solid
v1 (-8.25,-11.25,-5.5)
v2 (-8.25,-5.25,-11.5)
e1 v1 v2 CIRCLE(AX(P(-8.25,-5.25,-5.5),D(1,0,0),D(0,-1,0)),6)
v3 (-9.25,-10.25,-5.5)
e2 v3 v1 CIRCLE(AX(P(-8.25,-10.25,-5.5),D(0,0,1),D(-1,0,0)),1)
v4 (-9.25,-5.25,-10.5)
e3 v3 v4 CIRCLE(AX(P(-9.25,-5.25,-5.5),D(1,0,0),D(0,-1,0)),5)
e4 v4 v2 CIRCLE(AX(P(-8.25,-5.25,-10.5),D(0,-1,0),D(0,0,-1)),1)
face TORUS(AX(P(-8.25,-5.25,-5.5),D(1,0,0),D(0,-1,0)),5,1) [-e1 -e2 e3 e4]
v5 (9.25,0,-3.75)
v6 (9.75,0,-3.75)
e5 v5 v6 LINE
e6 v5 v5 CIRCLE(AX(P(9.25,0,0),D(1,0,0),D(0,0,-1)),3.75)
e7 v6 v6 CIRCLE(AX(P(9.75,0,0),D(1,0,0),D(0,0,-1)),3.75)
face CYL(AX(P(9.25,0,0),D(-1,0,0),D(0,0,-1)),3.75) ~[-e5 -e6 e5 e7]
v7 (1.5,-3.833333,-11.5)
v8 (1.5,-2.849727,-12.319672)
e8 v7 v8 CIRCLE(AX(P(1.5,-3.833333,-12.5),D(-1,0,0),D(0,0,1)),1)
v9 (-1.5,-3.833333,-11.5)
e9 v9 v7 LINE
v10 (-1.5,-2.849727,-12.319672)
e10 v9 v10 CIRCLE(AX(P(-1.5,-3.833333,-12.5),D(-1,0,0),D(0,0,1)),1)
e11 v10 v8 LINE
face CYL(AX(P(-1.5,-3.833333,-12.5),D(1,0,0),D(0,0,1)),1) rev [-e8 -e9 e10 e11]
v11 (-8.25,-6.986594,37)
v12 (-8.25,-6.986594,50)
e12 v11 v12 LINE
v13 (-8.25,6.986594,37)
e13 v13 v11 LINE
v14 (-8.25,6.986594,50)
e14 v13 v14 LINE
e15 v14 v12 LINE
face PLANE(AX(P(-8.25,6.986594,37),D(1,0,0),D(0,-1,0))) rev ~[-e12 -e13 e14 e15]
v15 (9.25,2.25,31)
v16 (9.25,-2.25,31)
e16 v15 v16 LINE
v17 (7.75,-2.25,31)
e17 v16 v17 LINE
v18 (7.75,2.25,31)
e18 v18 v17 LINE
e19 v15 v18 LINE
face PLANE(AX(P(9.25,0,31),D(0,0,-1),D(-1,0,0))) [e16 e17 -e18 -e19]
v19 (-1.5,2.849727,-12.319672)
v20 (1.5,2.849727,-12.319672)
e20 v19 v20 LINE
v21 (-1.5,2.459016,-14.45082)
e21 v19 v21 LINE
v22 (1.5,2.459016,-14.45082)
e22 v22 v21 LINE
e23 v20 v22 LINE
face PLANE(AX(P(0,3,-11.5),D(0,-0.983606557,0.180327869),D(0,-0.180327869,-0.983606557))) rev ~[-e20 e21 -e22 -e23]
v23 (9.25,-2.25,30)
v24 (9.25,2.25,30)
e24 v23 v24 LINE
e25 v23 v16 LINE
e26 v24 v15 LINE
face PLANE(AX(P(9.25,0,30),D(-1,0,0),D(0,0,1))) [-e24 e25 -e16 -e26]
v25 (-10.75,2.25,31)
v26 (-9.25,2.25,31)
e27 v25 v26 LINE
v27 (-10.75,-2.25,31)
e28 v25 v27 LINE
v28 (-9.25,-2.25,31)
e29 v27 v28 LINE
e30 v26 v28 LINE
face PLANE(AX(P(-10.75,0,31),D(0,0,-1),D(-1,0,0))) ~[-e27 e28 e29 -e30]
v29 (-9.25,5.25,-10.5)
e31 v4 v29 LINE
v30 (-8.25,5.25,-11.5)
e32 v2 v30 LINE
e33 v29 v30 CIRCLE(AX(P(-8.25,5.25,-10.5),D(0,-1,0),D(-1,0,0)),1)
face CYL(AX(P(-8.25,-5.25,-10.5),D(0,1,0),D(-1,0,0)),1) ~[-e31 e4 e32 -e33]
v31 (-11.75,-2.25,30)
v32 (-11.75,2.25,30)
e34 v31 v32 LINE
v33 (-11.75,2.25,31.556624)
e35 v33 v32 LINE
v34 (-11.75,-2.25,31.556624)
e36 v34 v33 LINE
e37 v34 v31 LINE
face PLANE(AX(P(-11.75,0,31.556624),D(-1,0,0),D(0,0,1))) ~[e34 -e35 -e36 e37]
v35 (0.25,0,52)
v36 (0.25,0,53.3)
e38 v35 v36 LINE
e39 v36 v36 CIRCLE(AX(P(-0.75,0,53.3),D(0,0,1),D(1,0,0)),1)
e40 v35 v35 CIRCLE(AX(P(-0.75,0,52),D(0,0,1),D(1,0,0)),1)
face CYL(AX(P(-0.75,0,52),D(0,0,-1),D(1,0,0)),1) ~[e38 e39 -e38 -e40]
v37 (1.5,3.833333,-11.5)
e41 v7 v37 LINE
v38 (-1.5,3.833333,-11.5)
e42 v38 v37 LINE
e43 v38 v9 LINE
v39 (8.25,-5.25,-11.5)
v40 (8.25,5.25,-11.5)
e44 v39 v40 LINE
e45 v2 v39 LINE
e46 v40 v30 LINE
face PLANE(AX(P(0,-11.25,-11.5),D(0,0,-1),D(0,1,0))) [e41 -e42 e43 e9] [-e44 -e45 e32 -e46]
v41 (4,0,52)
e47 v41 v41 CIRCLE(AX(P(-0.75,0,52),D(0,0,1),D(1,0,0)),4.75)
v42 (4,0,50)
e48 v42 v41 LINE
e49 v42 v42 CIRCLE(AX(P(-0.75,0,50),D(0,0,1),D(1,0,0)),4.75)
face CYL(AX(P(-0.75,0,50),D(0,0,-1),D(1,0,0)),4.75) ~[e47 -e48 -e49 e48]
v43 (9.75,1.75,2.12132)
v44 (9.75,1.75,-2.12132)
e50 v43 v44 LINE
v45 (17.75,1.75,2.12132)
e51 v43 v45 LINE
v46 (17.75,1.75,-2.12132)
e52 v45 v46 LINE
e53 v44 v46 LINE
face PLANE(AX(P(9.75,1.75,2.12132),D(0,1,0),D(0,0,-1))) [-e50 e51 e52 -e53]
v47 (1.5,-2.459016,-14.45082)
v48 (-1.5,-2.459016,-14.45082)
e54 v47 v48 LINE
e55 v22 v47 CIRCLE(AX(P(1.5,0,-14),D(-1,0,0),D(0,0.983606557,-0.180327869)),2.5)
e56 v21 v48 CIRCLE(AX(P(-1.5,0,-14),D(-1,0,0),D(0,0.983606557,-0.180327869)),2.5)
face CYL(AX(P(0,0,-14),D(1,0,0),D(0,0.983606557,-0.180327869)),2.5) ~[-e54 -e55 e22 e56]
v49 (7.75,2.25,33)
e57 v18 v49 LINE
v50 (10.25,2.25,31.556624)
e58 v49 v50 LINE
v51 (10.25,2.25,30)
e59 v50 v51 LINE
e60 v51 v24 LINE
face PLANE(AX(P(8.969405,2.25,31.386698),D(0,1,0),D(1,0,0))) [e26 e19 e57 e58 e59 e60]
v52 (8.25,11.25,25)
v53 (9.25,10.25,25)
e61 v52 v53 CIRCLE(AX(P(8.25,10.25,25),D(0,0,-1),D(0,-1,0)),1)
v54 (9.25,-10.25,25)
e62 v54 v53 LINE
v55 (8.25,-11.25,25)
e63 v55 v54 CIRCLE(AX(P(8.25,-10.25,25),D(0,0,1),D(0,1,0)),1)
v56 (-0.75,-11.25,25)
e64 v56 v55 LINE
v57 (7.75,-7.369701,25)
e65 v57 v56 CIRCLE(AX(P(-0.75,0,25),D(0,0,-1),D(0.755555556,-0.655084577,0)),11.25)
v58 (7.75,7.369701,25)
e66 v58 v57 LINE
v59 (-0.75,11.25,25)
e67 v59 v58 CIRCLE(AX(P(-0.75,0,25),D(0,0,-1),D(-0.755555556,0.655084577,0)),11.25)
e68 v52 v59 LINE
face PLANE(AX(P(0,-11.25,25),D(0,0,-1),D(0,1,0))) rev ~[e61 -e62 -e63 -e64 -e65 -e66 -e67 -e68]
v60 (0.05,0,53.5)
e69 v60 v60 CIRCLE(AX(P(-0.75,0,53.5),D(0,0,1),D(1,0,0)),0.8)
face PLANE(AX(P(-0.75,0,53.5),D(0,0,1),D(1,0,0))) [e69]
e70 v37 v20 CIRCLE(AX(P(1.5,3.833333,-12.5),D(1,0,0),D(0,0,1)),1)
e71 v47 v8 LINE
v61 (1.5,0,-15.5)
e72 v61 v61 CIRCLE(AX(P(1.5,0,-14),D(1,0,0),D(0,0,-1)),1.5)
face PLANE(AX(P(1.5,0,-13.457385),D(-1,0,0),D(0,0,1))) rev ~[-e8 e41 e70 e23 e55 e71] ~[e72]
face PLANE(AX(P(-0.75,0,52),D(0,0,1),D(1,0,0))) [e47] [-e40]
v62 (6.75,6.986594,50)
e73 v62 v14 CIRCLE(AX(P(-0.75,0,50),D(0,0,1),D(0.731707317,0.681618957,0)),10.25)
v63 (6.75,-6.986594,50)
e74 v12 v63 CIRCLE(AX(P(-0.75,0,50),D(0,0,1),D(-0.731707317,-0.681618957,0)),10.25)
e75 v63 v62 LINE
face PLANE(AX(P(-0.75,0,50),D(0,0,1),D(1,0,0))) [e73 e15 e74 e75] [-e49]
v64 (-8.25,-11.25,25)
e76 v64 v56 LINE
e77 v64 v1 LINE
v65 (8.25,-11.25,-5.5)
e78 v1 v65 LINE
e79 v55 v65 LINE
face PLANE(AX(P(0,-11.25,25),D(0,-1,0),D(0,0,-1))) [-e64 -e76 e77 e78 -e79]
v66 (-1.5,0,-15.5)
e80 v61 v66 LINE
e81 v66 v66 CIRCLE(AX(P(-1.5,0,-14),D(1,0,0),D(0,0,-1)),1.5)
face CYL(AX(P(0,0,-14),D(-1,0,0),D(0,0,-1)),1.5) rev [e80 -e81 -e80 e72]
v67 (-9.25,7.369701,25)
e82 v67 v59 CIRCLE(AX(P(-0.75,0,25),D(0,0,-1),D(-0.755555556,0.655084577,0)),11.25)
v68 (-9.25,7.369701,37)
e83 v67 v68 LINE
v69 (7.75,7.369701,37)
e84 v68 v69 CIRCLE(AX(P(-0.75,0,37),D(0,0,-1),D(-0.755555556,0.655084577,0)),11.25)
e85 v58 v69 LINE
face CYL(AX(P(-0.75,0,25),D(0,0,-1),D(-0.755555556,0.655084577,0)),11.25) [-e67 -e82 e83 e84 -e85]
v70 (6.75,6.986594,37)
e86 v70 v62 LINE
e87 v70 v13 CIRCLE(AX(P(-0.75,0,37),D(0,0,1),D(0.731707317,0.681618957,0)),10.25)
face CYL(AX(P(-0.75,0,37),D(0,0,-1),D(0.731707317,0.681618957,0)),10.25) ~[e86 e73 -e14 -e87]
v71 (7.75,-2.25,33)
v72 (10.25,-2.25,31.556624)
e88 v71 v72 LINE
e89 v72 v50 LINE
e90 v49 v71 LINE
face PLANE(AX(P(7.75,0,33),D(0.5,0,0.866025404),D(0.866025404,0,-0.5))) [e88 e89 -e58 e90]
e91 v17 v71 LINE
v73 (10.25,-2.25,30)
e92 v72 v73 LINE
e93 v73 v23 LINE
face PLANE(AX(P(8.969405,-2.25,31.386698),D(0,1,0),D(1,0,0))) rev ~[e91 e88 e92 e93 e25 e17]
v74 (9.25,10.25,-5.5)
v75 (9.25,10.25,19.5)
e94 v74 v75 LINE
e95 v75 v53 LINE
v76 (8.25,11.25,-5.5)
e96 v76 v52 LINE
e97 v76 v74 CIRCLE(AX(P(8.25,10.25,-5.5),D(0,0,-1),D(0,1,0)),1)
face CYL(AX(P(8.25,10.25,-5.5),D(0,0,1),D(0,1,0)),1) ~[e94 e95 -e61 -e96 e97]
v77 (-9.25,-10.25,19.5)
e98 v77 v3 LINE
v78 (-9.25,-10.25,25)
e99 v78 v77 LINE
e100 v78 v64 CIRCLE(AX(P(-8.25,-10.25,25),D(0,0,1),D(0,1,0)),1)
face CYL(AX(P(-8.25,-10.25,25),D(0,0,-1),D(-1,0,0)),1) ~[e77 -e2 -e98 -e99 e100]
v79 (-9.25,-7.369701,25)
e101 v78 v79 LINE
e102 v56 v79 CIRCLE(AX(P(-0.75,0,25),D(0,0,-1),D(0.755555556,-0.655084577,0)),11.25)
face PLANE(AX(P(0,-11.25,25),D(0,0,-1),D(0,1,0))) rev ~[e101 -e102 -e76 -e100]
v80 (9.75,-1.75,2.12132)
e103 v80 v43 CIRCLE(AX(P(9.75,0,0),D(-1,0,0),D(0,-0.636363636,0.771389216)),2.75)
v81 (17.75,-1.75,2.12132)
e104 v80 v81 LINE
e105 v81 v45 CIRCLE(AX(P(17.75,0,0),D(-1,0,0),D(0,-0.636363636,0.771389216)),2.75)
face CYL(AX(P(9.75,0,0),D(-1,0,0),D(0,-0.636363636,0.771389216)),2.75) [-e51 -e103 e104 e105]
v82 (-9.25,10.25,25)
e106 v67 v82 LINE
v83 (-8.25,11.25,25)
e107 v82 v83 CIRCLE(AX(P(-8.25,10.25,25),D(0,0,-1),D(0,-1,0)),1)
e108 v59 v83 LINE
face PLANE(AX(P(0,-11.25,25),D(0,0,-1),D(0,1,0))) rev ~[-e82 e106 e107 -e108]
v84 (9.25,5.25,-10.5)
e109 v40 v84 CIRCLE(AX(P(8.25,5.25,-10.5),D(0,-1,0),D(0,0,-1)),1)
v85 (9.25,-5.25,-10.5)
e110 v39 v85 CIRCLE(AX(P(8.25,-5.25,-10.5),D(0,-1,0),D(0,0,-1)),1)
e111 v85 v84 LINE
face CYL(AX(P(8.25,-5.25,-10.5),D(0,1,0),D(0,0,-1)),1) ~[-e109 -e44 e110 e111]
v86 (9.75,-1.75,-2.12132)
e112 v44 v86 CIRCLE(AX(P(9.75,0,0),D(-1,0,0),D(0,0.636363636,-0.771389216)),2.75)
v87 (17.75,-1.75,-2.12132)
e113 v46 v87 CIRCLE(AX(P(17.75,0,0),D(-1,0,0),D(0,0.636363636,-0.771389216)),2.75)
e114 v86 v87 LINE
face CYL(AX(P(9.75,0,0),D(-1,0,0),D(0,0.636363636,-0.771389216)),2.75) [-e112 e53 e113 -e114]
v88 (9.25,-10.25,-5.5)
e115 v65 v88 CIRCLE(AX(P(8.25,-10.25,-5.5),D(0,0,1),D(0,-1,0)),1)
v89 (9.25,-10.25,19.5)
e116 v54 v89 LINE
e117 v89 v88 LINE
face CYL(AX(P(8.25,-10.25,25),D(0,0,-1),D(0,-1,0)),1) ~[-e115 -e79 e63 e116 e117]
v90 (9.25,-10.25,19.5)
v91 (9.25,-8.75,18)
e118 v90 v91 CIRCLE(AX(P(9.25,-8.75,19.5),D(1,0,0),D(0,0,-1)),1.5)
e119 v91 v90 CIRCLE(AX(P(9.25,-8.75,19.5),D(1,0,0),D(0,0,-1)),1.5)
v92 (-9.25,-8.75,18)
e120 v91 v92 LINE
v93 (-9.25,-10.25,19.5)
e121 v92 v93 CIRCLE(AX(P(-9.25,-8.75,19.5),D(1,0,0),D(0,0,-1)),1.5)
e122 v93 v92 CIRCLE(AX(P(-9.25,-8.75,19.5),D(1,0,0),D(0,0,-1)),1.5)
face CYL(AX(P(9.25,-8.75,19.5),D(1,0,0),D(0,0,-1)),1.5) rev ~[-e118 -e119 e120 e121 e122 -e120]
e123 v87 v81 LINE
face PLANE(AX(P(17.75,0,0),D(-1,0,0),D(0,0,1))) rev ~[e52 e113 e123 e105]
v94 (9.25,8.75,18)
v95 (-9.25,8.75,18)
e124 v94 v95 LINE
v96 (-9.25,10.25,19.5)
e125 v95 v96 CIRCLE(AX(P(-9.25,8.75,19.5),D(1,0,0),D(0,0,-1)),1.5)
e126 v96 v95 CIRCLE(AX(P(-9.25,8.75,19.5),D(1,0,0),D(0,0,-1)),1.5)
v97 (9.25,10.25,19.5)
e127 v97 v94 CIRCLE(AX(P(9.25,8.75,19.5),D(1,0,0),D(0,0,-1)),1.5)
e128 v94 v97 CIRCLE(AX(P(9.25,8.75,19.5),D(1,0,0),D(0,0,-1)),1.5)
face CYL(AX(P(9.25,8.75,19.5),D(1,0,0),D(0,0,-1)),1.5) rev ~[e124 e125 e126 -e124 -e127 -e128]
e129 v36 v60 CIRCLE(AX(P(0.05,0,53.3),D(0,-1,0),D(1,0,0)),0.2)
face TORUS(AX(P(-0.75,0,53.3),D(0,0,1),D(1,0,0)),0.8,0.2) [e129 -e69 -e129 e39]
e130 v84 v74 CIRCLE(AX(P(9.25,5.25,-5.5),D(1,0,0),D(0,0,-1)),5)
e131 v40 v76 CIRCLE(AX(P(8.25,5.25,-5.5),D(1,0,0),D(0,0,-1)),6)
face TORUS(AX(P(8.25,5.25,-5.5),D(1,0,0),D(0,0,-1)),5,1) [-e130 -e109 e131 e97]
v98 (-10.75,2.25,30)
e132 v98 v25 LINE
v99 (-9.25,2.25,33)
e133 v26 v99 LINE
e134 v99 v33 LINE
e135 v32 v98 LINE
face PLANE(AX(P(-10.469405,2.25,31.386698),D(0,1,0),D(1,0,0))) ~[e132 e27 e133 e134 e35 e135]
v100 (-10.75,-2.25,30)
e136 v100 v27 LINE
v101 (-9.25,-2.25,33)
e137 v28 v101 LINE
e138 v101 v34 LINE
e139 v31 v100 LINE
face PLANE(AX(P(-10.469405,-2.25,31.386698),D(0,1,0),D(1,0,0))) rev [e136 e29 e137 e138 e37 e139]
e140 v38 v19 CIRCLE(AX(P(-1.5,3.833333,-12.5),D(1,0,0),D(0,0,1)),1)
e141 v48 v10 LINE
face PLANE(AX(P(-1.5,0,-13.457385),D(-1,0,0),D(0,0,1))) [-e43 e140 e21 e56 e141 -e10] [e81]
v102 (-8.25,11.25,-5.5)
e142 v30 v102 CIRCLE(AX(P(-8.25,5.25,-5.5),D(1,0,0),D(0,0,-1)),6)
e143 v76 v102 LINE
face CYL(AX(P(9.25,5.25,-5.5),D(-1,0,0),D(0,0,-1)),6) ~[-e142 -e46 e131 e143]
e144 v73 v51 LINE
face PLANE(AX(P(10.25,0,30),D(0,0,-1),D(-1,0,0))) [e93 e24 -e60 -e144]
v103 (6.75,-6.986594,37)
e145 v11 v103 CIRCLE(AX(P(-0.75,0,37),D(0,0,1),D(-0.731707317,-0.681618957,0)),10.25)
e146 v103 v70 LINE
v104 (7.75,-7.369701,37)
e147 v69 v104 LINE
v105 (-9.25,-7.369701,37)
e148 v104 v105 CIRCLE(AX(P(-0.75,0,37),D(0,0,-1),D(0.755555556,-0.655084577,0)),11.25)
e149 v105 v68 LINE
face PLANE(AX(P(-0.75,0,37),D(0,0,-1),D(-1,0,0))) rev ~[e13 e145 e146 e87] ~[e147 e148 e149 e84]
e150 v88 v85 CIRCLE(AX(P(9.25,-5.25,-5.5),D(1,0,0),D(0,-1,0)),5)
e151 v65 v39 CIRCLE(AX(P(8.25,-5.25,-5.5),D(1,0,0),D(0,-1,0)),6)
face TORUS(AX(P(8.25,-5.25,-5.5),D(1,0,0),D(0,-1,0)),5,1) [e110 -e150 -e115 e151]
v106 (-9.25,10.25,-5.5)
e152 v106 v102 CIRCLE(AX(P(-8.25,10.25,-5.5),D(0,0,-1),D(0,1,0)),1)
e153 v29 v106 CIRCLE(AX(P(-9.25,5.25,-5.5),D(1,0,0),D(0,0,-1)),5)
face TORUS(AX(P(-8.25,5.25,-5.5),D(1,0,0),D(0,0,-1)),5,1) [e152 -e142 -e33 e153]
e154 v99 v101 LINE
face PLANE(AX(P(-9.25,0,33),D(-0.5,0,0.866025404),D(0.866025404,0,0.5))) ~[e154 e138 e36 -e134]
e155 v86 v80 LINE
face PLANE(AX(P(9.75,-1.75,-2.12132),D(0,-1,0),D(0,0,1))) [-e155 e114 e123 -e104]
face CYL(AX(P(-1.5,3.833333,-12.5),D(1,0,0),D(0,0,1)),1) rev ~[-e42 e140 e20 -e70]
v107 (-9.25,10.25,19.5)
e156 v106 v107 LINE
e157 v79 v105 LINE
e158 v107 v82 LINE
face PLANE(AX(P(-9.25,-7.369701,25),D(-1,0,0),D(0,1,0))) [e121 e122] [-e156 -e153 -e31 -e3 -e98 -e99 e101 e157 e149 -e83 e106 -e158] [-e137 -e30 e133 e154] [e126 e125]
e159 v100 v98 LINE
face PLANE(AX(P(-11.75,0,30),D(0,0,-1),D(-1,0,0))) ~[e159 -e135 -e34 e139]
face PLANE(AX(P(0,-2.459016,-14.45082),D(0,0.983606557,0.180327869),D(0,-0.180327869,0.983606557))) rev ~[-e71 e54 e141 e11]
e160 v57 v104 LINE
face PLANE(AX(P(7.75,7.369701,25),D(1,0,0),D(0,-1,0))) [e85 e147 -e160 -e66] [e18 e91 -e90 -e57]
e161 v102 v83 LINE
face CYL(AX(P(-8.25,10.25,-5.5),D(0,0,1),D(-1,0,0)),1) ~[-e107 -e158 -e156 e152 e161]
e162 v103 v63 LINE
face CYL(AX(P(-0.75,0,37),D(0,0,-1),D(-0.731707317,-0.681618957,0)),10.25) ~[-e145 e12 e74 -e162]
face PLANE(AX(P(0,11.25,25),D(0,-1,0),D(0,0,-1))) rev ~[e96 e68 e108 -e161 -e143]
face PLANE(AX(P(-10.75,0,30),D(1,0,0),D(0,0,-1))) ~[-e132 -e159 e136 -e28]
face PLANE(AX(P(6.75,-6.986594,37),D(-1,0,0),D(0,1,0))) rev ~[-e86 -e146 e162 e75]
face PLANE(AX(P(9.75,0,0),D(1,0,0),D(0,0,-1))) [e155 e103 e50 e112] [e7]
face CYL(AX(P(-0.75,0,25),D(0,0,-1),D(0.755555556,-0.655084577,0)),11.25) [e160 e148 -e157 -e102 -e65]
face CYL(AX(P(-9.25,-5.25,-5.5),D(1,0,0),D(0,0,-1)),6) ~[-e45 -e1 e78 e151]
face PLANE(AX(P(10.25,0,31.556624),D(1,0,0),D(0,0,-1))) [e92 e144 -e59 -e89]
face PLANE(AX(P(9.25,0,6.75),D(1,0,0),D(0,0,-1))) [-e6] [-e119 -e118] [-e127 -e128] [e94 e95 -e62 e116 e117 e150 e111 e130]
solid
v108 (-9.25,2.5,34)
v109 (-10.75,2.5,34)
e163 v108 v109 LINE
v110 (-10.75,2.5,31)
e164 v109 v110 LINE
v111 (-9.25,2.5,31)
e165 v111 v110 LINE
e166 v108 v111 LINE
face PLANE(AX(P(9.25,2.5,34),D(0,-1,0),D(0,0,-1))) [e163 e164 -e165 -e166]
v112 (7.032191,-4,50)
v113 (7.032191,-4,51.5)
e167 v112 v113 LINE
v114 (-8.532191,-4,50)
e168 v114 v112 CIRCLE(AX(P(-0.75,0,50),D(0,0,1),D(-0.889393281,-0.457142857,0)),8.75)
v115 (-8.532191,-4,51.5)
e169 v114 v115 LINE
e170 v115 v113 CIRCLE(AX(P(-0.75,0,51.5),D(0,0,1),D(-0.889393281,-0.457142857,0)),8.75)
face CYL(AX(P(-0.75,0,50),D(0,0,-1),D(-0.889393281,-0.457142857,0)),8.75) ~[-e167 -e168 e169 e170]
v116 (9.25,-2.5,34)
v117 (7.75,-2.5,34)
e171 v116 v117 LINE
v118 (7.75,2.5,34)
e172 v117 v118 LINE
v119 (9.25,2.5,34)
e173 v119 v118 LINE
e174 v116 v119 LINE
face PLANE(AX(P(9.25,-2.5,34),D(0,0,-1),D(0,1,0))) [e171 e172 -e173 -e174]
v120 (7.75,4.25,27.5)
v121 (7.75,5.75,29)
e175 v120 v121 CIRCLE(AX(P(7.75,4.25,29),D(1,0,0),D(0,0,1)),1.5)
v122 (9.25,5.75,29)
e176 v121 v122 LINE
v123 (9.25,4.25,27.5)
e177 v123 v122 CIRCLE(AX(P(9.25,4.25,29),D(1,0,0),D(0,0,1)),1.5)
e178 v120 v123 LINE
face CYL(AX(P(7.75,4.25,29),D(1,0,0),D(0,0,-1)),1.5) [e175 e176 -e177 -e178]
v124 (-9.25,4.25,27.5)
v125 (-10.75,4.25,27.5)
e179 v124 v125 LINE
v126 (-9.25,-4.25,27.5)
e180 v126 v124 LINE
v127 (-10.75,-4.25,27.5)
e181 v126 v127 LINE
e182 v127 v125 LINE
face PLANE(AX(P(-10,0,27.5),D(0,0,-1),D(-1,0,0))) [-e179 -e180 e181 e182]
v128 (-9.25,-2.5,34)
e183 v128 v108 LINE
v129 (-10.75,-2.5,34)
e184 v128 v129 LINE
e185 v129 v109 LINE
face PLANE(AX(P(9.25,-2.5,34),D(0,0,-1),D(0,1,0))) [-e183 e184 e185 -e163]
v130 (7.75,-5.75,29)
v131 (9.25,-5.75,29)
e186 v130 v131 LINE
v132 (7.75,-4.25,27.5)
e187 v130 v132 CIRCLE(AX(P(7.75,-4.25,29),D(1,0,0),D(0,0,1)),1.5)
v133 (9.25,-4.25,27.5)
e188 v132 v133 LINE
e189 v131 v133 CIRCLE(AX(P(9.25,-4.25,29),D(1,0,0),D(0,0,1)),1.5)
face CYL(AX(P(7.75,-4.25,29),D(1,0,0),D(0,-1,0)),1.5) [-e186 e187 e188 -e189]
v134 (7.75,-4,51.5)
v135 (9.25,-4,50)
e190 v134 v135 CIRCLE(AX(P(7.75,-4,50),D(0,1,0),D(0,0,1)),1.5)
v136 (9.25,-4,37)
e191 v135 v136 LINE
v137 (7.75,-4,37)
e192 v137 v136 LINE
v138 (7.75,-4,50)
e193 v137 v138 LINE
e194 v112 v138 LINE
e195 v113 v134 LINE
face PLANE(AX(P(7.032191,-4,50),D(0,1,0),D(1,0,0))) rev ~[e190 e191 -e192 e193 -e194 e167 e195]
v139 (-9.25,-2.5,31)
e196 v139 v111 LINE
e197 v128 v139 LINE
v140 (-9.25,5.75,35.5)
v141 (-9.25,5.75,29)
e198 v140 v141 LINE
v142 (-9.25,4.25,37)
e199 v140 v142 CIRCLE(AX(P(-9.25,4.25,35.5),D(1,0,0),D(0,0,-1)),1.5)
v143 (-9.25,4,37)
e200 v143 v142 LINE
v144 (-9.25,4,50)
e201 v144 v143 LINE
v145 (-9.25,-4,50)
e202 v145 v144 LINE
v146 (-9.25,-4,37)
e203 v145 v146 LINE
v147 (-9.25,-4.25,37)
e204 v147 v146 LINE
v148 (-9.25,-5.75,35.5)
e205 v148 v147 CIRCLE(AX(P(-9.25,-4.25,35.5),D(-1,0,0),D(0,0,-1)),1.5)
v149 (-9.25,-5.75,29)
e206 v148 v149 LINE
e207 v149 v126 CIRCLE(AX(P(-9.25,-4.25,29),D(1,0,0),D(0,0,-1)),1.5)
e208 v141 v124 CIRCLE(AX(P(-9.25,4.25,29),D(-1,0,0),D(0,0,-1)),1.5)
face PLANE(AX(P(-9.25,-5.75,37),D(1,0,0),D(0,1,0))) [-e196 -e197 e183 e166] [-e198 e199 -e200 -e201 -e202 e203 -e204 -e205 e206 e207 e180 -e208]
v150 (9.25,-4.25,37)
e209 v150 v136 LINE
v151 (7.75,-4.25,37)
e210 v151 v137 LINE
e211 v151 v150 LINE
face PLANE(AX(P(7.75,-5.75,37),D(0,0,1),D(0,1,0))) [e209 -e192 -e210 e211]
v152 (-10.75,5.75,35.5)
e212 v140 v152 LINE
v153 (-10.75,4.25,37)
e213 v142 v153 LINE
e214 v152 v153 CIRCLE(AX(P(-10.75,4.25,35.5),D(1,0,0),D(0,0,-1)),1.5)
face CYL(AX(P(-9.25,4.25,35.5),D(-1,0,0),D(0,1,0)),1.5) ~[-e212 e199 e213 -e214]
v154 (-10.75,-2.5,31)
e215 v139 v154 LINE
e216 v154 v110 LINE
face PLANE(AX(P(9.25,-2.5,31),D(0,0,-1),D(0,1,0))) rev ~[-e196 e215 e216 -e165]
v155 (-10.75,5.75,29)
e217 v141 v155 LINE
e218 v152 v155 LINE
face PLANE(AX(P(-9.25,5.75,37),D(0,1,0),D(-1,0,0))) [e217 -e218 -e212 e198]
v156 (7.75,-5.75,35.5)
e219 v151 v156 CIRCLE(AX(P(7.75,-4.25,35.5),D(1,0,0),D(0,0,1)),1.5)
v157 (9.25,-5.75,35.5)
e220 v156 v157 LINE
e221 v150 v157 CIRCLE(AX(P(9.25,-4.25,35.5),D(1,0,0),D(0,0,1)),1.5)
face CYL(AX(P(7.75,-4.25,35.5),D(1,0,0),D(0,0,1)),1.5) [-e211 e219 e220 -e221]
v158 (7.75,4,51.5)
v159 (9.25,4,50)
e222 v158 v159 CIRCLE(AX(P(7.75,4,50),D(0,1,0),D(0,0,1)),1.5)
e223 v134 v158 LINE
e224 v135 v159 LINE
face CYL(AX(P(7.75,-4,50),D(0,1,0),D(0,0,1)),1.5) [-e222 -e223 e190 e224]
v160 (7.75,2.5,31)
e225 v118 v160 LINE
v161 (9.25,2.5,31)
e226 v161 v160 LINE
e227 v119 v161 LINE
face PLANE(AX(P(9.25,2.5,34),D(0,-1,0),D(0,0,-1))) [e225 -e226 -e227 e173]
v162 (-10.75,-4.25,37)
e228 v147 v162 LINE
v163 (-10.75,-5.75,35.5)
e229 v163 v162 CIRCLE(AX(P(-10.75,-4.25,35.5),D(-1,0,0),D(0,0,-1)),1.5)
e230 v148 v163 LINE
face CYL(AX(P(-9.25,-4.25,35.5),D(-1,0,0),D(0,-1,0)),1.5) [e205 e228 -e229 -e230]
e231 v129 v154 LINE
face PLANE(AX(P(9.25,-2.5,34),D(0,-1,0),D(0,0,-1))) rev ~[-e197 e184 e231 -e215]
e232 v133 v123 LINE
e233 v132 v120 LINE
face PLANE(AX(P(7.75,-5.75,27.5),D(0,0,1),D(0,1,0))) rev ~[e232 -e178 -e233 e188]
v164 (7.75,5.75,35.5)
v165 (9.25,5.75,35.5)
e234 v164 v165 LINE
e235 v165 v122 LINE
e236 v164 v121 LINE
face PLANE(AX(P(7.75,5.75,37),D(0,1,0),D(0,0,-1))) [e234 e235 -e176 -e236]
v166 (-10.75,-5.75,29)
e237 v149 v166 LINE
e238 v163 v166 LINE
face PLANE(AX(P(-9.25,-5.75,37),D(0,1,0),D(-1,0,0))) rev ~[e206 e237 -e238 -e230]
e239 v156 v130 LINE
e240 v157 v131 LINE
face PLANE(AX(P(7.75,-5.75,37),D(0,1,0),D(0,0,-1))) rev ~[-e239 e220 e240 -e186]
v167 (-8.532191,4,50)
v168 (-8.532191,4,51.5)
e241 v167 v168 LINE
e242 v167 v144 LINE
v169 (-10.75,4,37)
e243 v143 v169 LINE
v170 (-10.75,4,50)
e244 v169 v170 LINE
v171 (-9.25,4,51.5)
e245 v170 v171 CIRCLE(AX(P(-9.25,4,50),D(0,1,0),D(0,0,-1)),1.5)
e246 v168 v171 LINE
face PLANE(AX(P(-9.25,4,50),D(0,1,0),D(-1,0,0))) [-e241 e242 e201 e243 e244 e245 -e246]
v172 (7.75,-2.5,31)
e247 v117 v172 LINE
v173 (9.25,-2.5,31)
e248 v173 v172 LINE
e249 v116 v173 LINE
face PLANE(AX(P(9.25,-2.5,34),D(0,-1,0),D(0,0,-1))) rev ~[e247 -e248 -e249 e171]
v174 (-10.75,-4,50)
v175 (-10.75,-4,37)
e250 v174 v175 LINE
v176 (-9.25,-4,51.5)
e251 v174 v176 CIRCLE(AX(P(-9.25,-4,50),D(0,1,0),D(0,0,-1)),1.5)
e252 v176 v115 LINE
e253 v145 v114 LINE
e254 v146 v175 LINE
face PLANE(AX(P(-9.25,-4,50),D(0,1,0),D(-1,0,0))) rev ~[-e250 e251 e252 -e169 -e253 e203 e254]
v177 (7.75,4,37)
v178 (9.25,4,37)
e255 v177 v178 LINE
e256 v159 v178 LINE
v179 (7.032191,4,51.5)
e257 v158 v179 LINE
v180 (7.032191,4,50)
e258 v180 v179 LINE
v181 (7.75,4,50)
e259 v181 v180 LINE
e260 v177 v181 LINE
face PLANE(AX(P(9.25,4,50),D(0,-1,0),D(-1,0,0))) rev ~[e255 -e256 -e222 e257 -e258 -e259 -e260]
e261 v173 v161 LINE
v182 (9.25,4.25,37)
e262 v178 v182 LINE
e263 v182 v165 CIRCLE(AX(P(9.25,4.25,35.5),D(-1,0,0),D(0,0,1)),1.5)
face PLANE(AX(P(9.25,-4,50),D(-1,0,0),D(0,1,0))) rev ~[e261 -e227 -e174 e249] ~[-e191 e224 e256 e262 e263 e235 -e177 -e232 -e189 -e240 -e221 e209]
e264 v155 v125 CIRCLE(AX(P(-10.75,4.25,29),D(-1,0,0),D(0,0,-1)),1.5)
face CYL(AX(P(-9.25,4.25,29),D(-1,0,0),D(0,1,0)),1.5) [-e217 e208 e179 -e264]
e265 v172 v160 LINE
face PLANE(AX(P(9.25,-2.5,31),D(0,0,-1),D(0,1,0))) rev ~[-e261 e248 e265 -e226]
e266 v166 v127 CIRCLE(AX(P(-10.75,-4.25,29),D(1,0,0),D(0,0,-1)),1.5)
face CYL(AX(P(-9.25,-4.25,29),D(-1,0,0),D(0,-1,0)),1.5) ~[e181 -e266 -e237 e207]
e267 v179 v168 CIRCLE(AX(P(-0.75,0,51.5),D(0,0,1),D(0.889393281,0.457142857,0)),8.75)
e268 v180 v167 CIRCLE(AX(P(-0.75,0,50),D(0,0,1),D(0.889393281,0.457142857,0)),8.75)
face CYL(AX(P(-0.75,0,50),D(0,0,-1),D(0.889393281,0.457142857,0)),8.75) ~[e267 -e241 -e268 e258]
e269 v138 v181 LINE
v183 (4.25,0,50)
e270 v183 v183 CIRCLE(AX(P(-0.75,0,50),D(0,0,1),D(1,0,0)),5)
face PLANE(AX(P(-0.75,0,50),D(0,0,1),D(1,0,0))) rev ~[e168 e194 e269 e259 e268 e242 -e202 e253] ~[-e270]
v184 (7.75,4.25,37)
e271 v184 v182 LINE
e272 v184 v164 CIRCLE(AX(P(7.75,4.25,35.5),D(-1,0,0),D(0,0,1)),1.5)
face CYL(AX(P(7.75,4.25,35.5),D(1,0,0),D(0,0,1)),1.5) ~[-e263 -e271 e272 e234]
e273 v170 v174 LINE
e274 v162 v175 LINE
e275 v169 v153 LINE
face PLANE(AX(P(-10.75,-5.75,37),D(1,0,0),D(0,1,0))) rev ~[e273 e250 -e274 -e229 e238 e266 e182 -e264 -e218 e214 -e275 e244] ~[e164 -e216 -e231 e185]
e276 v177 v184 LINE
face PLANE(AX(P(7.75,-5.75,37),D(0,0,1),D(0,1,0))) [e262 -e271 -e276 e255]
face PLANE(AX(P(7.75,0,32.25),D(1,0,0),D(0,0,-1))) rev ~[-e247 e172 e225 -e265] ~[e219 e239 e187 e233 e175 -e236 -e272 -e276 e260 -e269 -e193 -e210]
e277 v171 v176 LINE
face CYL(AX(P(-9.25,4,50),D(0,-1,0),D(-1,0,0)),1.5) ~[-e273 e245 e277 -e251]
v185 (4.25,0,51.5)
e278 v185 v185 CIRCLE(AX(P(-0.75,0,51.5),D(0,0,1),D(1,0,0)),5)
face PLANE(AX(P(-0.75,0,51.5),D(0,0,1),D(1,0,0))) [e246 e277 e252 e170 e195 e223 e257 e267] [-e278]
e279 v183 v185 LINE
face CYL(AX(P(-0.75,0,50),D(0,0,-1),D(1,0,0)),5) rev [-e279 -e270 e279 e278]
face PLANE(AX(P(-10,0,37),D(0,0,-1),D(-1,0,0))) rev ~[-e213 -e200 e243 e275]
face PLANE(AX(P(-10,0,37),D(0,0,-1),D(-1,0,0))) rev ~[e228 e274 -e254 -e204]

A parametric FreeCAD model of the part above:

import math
import FreeCAD as App
import Part
import Sketcher
from FreeCAD import Vector
Q = App.Units.Quantity


def edges_at(feature, points):
    """Names of the edges that pass closest to the given points."""
    edges = feature.Shape.Edges
    near = lambda p: min(range(len(edges)), key=lambda i: edges[i].distToShape(Part.Vertex(*p))[0])
    return sorted({f"Edge{near(p) + 1}" for p in points})


def add_polygon(sketch, points):
    """Adds a closed chain of lines whose ends are joined by coincident constraints."""
    first, n = sketch.GeometryCount, len(points)
    for a, b in zip(points, points[1:] + points[:1]):
        sketch.addGeometry(Part.LineSegment(App.Vector(*a, 0), App.Vector(*b, 0)), False)
    for i in range(n):
        sketch.addConstraint(Sketcher.Constraint("Coincident", first + i, 2, first + (i + 1) % n, 1))

doc = App.newDocument("Part")
body = doc.addObject("PartDesign::Body", "Body")

sketch1 = doc.addObject("Sketcher::SketchObject", "Sketch")
body.addObject(sketch1)
sketch1.AttachmentSupport = (doc.YZ_Plane, [""])
sketch1.MapMode = "FlatFace"
add_polygon(sketch1, [(11, 25), (-11, 25), (-11, -12), (11, -12)])
sketch1.addConstraint(Sketcher.Constraint("Horizontal", 0))
sketch1.addConstraint(Sketcher.Constraint("Vertical", 1))
sketch1.addConstraint(Sketcher.Constraint("Horizontal", 2))
sketch1.addConstraint(Sketcher.Constraint("Vertical", 3))
sketch1.addConstraint(Sketcher.Constraint("DistanceX", 0, 2, 0, 1, Q("22.5 mm")))
sketch1.addConstraint(Sketcher.Constraint("DistanceY", 1, 2, 1, 1, Q("36.5 mm")))
sketch1.addConstraint(Sketcher.Constraint("DistanceY", -1, 1, 0, 2, Q("25 mm")))
sketch1.addConstraint(Sketcher.Constraint("DistanceX", 0, 2, -1, 1, Q("11.25 mm")))
pad1 = doc.addObject("PartDesign::Pad", "Pad")
body.addObject(pad1)
pad1.Profile = sketch1
pad1.Length = 18.5
pad1.Midplane = True
doc.recompute()

fillet = doc.addObject("PartDesign::Fillet", "Fillet")
body.addObject(fillet)
fillet.Base = (pad1, edges_at(pad1, [(0, -11.25, -11.5), (0, 11.25, -11.5)]))
fillet.Radius = 6

sketch2 = doc.addObject("Sketcher::SketchObject", "Sketch001")
body.addObject(sketch2)
sketch2.AttachmentSupport = (doc.XY_Plane, [""])
sketch2.MapMode = "FlatFace"
sketch2.AttachmentOffset = App.Placement(Vector(0, 0, 25), App.Rotation())
sketch2.addGeometry(Part.LineSegment(Vector(8, -7, 0), Vector(8, 7, 0)), False)
sketch2.addGeometry(Part.ArcOfCircle(Part.Circle(Vector(-1, 0, 0), Vector(0, 0, 1), 11), math.radians(41), math.radians(139)), False)
sketch2.addGeometry(Part.LineSegment(Vector(-9, 7, 0), Vector(-9, -7, 0)), False)
sketch2.addGeometry(Part.ArcOfCircle(Part.Circle(Vector(-1, 0, 0), Vector(0, 0, 1), 11), math.radians(-139), math.radians(-41)), False)
sketch2.addConstraint(Sketcher.Constraint("Coincident", 0, 2, 1, 1))
sketch2.addConstraint(Sketcher.Constraint("Coincident", 1, 2, 2, 1))
sketch2.addConstraint(Sketcher.Constraint("Coincident", 2, 2, 3, 1))
sketch2.addConstraint(Sketcher.Constraint("Coincident", 3, 2, 0, 1))
sketch2.addConstraint(Sketcher.Constraint("Vertical", 0))
sketch2.addConstraint(Sketcher.Constraint("Vertical", 2))
sketch2.addConstraint(Sketcher.Constraint("Coincident", 3, 3, 1, 3))
sketch2.addConstraint(Sketcher.Constraint("Equal", 1, 3))
sketch2.addConstraint(Sketcher.Constraint("PointOnObject", 1, 3, -1))
sketch2.addConstraint(Sketcher.Constraint("Horizontal", 0, 2, 1, 2))
sketch2.addConstraint(Sketcher.Constraint("Radius", 1, Q("11.25 mm")))
sketch2.addConstraint(Sketcher.Constraint("DistanceX", 1, 2, 0, 2, Q("17 mm")))
sketch2.addConstraint(Sketcher.Constraint("DistanceX", 1, 3, -1, 1, Q("0.75 mm")))
pad2 = doc.addObject("PartDesign::Pad", "Pad001")
body.addObject(pad2)
pad2.Profile = sketch2
pad2.Length = 12

sketch3 = doc.addObject("Sketcher::SketchObject", "Sketch002")
body.addObject(sketch3)
sketch3.AttachmentSupport = (doc.XY_Plane, [""])
sketch3.MapMode = "FlatFace"
sketch3.AttachmentOffset = App.Placement(Vector(0, 0, 37), App.Rotation())
sketch3.addGeometry(Part.LineSegment(Vector(-8, 7, 0), Vector(-8, -7, 0)), False)
sketch3.addGeometry(Part.ArcOfCircle(Part.Circle(Vector(-1, 0, 0), Vector(0, 0, 1), 10), math.radians(-137), math.radians(-43)), False)
sketch3.addGeometry(Part.LineSegment(Vector(7, -7, 0), Vector(7, 7, 0)), False)
sketch3.addGeometry(Part.ArcOfCircle(Part.Circle(Vector(-1, 0, 0), Vector(0, 0, 1), 10), math.radians(43), math.radians(137)), False)
sketch3.addConstraint(Sketcher.Constraint("Coincident", 0, 2, 1, 1))
sketch3.addConstraint(Sketcher.Constraint("Coincident", 1, 2, 2, 1))
sketch3.addConstraint(Sketcher.Constraint("Coincident", 2, 2, 3, 1))
sketch3.addConstraint(Sketcher.Constraint("Coincident", 3, 2, 0, 1))
sketch3.addConstraint(Sketcher.Constraint("Vertical", 0))
sketch3.addConstraint(Sketcher.Constraint("Vertical", 2))
sketch3.addConstraint(Sketcher.Constraint("Coincident", 3, 3, 1, 3))
sketch3.addConstraint(Sketcher.Constraint("Equal", 1, 3))
sketch3.addConstraint(Sketcher.Constraint("PointOnObject", 1, 3, -1))
sketch3.addConstraint(Sketcher.Constraint("Horizontal", 0, 2, 1, 2))
sketch3.addConstraint(Sketcher.Constraint("Radius", 1, Q("10.25 mm")))
sketch3.addConstraint(Sketcher.Constraint("DistanceX", 0, 2, 1, 2, Q("15 mm")))
sketch3.addConstraint(Sketcher.Constraint("DistanceX", 1, 3, -1, 1, Q("0.75 mm")))
pad3 = doc.addObject("PartDesign::Pad", "Pad002")
body.addObject(pad3)
pad3.Profile = sketch3
pad3.Length = 13

sketch4 = doc.addObject("Sketcher::SketchObject", "Sketch003")
body.addObject(sketch4)
sketch4.AttachmentSupport = (doc.YZ_Plane, [""])
sketch4.MapMode = "FlatFace"
sketch4.AttachmentOffset = App.Placement(Vector(0, 0, 9.25), App.Rotation())
sketch4.addGeometry(Part.Circle(Vector(0, 0, 0), Vector(0, 0, 1), 3.8), False)
sketch4.addConstraint(Sketcher.Constraint("Coincident", 0, 3, -1, 1))
sketch4.addConstraint(Sketcher.Constraint("Diameter", 0, Q("7.5 mm")))
pad4 = doc.addObject("PartDesign::Pad", "Pad003")
body.addObject(pad4)
pad4.Profile = sketch4
pad4.Length = 0.5

sketch5 = doc.addObject("Sketcher::SketchObject", "Sketch004")
body.addObject(sketch5)
sketch5.AttachmentSupport = (doc.XY_Plane, [""])
sketch5.MapMode = "FlatFace"
sketch5.AttachmentOffset = App.Placement(Vector(0, 0, 50), App.Rotation())
sketch5.addGeometry(Part.Circle(Vector(-0.8, 0, 0), Vector(0, 0, 1), 4.8), False)
sketch5.addConstraint(Sketcher.Constraint("PointOnObject", 0, 3, -1))
sketch5.addConstraint(Sketcher.Constraint("Diameter", 0, Q("9.5 mm")))
sketch5.addConstraint(Sketcher.Constraint("DistanceX", 0, 3, -1, 1, Q("0.75 mm")))
pad5 = doc.addObject("PartDesign::Pad", "Pad004")
body.addObject(pad5)
pad5.Profile = sketch5
pad5.Length = 2

sketch6 = doc.addObject("Sketcher::SketchObject", "Sketch005")
body.addObject(sketch6)
sketch6.AttachmentSupport = (doc.XZ_Plane, [""])
sketch6.MapMode = "FlatFace"
add_polygon(sketch6, [(7.8, 33), (10.2, 31.6), (10.2, 30), (9.2, 30), (9.2, 31), (7.8, 31)])
sketch6.addConstraint(Sketcher.Constraint("Vertical", 1))
sketch6.addConstraint(Sketcher.Constraint("Horizontal", 2))
sketch6.addConstraint(Sketcher.Constraint("Vertical", 3))
sketch6.addConstraint(Sketcher.Constraint("Horizontal", 4))
sketch6.addConstraint(Sketcher.Constraint("Vertical", 5))
sketch6.addConstraint(Sketcher.Constraint("Equal", 2, 3))
sketch6.addConstraint(Sketcher.Constraint("DistanceX", 2, 2, 2, 1, Q("1 mm")))
sketch6.addConstraint(Sketcher.Constraint("DistanceY", 5, 1, 5, 2, Q("2 mm")))
sketch6.addConstraint(Sketcher.Constraint("Angle", 0, Q("-30 deg")))
sketch6.addConstraint(Sketcher.Constraint("DistanceX", 4, 2, 4, 1, Q("1.5 mm")))
sketch6.addConstraint(Sketcher.Constraint("DistanceY", -1, 1, 1, 2, Q("30 mm")))
sketch6.addConstraint(Sketcher.Constraint("DistanceX", -1, 1, 0, 2, Q("10.25 mm")))
pad6 = doc.addObject("PartDesign::Pad", "Pad005")
body.addObject(pad6)
pad6.Profile = sketch6
pad6.Length = 4.5
pad6.Midplane = True
doc.recompute()

datumplane = doc.addObject("PartDesign::Plane", "DatumPlane")
body.addObject(datumplane)
datumplane.AttachmentSupport = (doc.YZ_Plane, [""])
datumplane.MapMode = "FlatFace"
datumplane.AttachmentOffset = App.Placement(Vector(0, 0, -0.75), App.Rotation())
mirrored = doc.addObject("PartDesign::Mirrored", "Mirrored")
body.addObject(mirrored)
mirrored.Originals = [pad6]
mirrored.MirrorPlane = (datumplane, [""])
body.Tip = mirrored

sketch7 = doc.addObject("Sketcher::SketchObject", "Sketch006")
body.addObject(sketch7)
sketch7.AttachmentSupport = (doc.XY_Plane, [""])
sketch7.MapMode = "FlatFace"
sketch7.AttachmentOffset = App.Placement(Vector(0, 0, 52), App.Rotation())
sketch7.addGeometry(Part.Circle(Vector(-0.8, 0, 0), Vector(0, 0, 1), 1), False)
sketch7.addConstraint(Sketcher.Constraint("PointOnObject", 0, 3, -1))
sketch7.addConstraint(Sketcher.Constraint("Diameter", 0, Q("2 mm")))
sketch7.addConstraint(Sketcher.Constraint("DistanceX", 0, 3, -1, 1, Q("0.75 mm")))
pad7 = doc.addObject("PartDesign::Pad", "Pad006")
body.addObject(pad7)
pad7.Profile = sketch7
pad7.Length = 1.5

sketch8 = doc.addObject("Sketcher::SketchObject", "Sketch007")
body.addObject(sketch8)
sketch8.AttachmentSupport = (doc.YZ_Plane, [""])
sketch8.MapMode = "FlatFace"
sketch8.AttachmentOffset = App.Placement(Vector(0, 0, 9.75), App.Rotation())
sketch8.addGeometry(Part.LineSegment(Vector(1.8, -2.1, 0), Vector(1.8, 2.1, 0)), False)
sketch8.addGeometry(Part.ArcOfCircle(Part.Circle(Vector(0, 0, 0), Vector(0, 0, 1), 2.8), math.radians(50), math.radians(130)), False)
sketch8.addGeometry(Part.LineSegment(Vector(-1.8, 2.1, 0), Vector(-1.8, -2.1, 0)), False)
sketch8.addGeometry(Part.ArcOfCircle(Part.Circle(Vector(0, 0, 0), Vector(0, 0, 1), 2.8), math.radians(-130), math.radians(-50)), False)
sketch8.addConstraint(Sketcher.Constraint("Coincident", 0, 2, 1, 1))
sketch8.addConstraint(Sketcher.Constraint("Coincident", 1, 2, 2, 1))
sketch8.addConstraint(Sketcher.Constraint("Coincident", 2, 2, 3, 1))
sketch8.addConstraint(Sketcher.Constraint("Coincident", 3, 2, 0, 1))
sketch8.addConstraint(Sketcher.Constraint("Vertical", 0))
sketch8.addConstraint(Sketcher.Constraint("Vertical", 2))
sketch8.addConstraint(Sketcher.Constraint("Coincident", 1, 3, -1, 1))
sketch8.addConstraint(Sketcher.Constraint("Coincident", 3, 3, -1, 1))
sketch8.addConstraint(Sketcher.Constraint("Equal", 1, 3))
sketch8.addConstraint(Sketcher.Constraint("Horizontal", 0, 2, 1, 2))
sketch8.addConstraint(Sketcher.Constraint("Radius", 1, Q("2.75 mm")))
sketch8.addConstraint(Sketcher.Constraint("DistanceX", 1, 2, 0, 2, Q("3.5 mm")))
pad8 = doc.addObject("PartDesign::Pad", "Pad007")
body.addObject(pad8)
pad8.Profile = sketch8
pad8.Length = 8
doc.recompute()

fillet2 = doc.addObject("PartDesign::Fillet", "Fillet001")
body.addObject(fillet2)
fillet2.Base = (pad8, edges_at(pad8, [
    (-9.25, -11.25, 9.75),
    (9.25, -11.25, 9.75),
    (9.25, -9.493, -9.743),
    (-9.25, -9.493, -9.743),
    (9.25, 0, -11.5),
    (-9.25, 0, -11.5),
    (9.25, 9.493, -9.743),
    (-9.25, 9.493, -9.743),
    (9.25, 11.25, 9.75),
    (-9.25, 11.25, 9.75),
]))
fillet2.Radius = 1

sketch9 = doc.addObject("Sketcher::SketchObject", "Sketch008")
body.addObject(sketch9)
sketch9.AttachmentSupport = (doc.YZ_Plane, [""])
sketch9.MapMode = "FlatFace"
sketch9.AttachmentOffset = App.Placement(Vector(0, 0, 9.25), App.Rotation())
sketch9.addGeometry(Part.Circle(Vector(8.8, 19.5, 0), Vector(0, 0, 1), 1.5), False)
sketch9.addGeometry(Part.Circle(Vector(-8.8, 19.5, 0), Vector(0, 0, 1), 1.5), False)
sketch9.addConstraint(Sketcher.Constraint("Equal", 0, 1))
sketch9.addConstraint(Sketcher.Constraint("Symmetric", 0, 3, 1, 3, -2))
sketch9.addConstraint(Sketcher.Constraint("Diameter", 0, Q("3 mm")))
sketch9.addConstraint(Sketcher.Constraint("DistanceY", -1, 1, 0, 3, Q("19.5 mm")))
sketch9.addConstraint(Sketcher.Constraint("DistanceX", 1, 3, 0, 3, Q("17.5 mm")))
pocket1 = doc.addObject("PartDesign::Pocket", "Pocket")
body.addObject(pocket1)
pocket1.Profile = sketch9
pocket1.Type = "ThroughAll"

sketch10 = doc.addObject("Sketcher::SketchObject", "Sketch009")
body.addObject(sketch10)
sketch10.AttachmentSupport = (doc.YZ_Plane, [""])
sketch10.MapMode = "FlatFace"
sketch10.addGeometry(Part.LineSegment(Vector(2.5, -14.5, 0), Vector(3, -11.5, 0)), False)
sketch10.addGeometry(Part.LineSegment(Vector(3, -11.5, 0), Vector(-3, -11.5, 0)), False)
sketch10.addGeometry(Part.LineSegment(Vector(-3, -11.5, 0), Vector(-2.5, -14.5, 0)), False)
sketch10.addGeometry(Part.ArcOfCircle(Part.Circle(Vector(0, -14, 0), Vector(0, 0, 1), 2.5), math.radians(-170), math.radians(-10)), False)
sketch10.addGeometry(Part.Circle(Vector(0, -14, 0), Vector(0, 0, 1), 1.5), False)
sketch10.addConstraint(Sketcher.Constraint("Coincident", 0, 2, 1, 1))
sketch10.addConstraint(Sketcher.Constraint("Coincident", 1, 2, 2, 1))
sketch10.addConstraint(Sketcher.Constraint("Tangent", 2, 2, 3, 1))
sketch10.addConstraint(Sketcher.Constraint("Tangent", 3, 2, 0, 1))
sketch10.addConstraint(Sketcher.Constraint("Horizontal", 1))
sketch10.addConstraint(Sketcher.Constraint("Coincident", 4, 3, 3, 3))
sketch10.addConstraint(Sketcher.Constraint("Symmetric", 2, 2, 3, 2, -2))
sketch10.addConstraint(Sketcher.Constraint("Diameter", 4, Q("3 mm")))
sketch10.addConstraint(Sketcher.Constraint("Radius", 3, Q("2.5 mm")))
sketch10.addConstraint(Sketcher.Constraint("DistanceX", 1, 2, 1, 1, Q("6 mm")))
sketch10.addConstraint(Sketcher.Constraint("Distance", 0, Q("3 mm")))
sketch10.addConstraint(Sketcher.Constraint("DistanceY", 3, 3, -1, 1, Q("14 mm")))
pad9 = doc.addObject("PartDesign::Pad", "Pad008")
body.addObject(pad9)
pad9.Profile = sketch10
pad9.Length = 3
pad9.Midplane = True
doc.recompute()

fillet3 = doc.addObject("PartDesign::Fillet", "Fillet002")
body.addObject(fillet3)
fillet3.Base = (pad9, edges_at(pad9, [(0, 3, -11.5), (0, -3, -11.5)]))
fillet3.Radius = 1
doc.recompute()

fillet4 = doc.addObject("PartDesign::Fillet", "Fillet003")
body.addObject(fillet4)
fillet4.Base = (fillet3, edges_at(fillet3, [(-1.75, 0, 53.5)]))
fillet4.Radius = 0.2
body2 = doc.addObject("PartDesign::Body", "Body001")

sketch11 = doc.addObject("Sketcher::SketchObject", "Sketch010")
body2.addObject(sketch11)
sketch11.AttachmentSupport = (doc.getObject("YZ_Plane001"), [""])
sketch11.MapMode = "FlatFace"
sketch11.AttachmentOffset = App.Placement(Vector(0, 0, 7.75), App.Rotation())
add_polygon(sketch11, [(6, 37), (-6, 37), (-6, 28), (6, 28)])
sketch11.addConstraint(Sketcher.Constraint("Horizontal", 0))
sketch11.addConstraint(Sketcher.Constraint("Vertical", 1))
sketch11.addConstraint(Sketcher.Constraint("Horizontal", 2))
sketch11.addConstraint(Sketcher.Constraint("Vertical", 3))
sketch11.addConstraint(Sketcher.Constraint("DistanceX", 0, 2, 0, 1, Q("11.5 mm")))
sketch11.addConstraint(Sketcher.Constraint("DistanceY", 1, 2, 1, 1, Q("9.5 mm")))
sketch11.addConstraint(Sketcher.Constraint("DistanceY", -1, 1, 0, 2, Q("37 mm")))
sketch11.addConstraint(Sketcher.Constraint("DistanceX", 0, 2, -1, 1, Q("5.75 mm")))
pad10 = doc.addObject("PartDesign::Pad", "Pad009")
body2.addObject(pad10)
pad10.Profile = sketch11
pad10.Length = 1.5

sketch12 = doc.addObject("Sketcher::SketchObject", "Sketch011")
body2.addObject(sketch12)
sketch12.AttachmentSupport = (doc.getObject("XY_Plane001"), [""])
sketch12.MapMode = "FlatFace"
sketch12.AttachmentOffset = App.Placement(Vector(0, 0, 37), App.Rotation())
add_polygon(sketch12, [(7.8, 4), (7.8, -4), (9.2, -4), (9.2, 4)])
sketch12.addConstraint(Sketcher.Constraint("Vertical", 0))
sketch12.addConstraint(Sketcher.Constraint("Horizontal", 1))
sketch12.addConstraint(Sketcher.Constraint("Vertical", 2))
sketch12.addConstraint(Sketcher.Constraint("Horizontal", 3))
sketch12.addConstraint(Sketcher.Constraint("DistanceY", 0, 2, 0, 1, Q("8 mm")))
sketch12.addConstraint(Sketcher.Constraint("DistanceX", 1, 1, 1, 2, Q("1.5 mm")))
sketch12.addConstraint(Sketcher.Constraint("DistanceY", 0, 2, -1, 1, Q("4 mm")))
sketch12.addConstraint(Sketcher.Constraint("DistanceX", -1, 1, 0, 2, Q("7.75 mm")))
pad11 = doc.addObject("PartDesign::Pad", "Pad010")
body2.addObject(pad11)
pad11.Profile = sketch12
pad11.Length = 13

sketch13 = doc.addObject("Sketcher::SketchObject", "Sketch012")
body2.addObject(sketch13)
sketch13.AttachmentSupport = (doc.getObject("XY_Plane001"), [""])
sketch13.MapMode = "FlatFace"
sketch13.AttachmentOffset = App.Placement(Vector(0, 0, 50), App.Rotation())
sketch13.addGeometry(Part.LineSegment(Vector(9.2, 4, 0), Vector(7, 4, 0)), False)
sketch13.addGeometry(Part.ArcOfCircle(Part.Circle(Vector(-0.8, 0, 0), Vector(0, 0, 1), 8.8), math.radians(27), math.radians(153)), False)
sketch13.addGeometry(Part.LineSegment(Vector(-8.5, 4, 0), Vector(-10.8, 4, 0)), False)
sketch13.addGeometry(Part.LineSegment(Vector(-10.8, 4, 0), Vector(-10.8, -4, 0)), False)
sketch13.addGeometry(Part.LineSegment(Vector(-10.8, -4, 0), Vector(-8.5, -4, 0)), False)
sketch13.addGeometry(Part.ArcOfCircle(Part.Circle(Vector(-0.8, 0, 0), Vector(0, 0, 1), 8.8), math.radians(-153), math.radians(-27)), False)
sketch13.addGeometry(Part.LineSegment(Vector(7, -4, 0), Vector(9.2, -4, 0)), False)
sketch13.addGeometry(Part.LineSegment(Vector(9.2, -4, 0), Vector(9.2, 4, 0)), False)
sketch13.addGeometry(Part.Circle(Vector(-0.8, 0, 0), Vector(0, 0, 1), 5), False)
sketch13.addConstraint(Sketcher.Constraint("Coincident", 0, 2, 1, 1))
sketch13.addConstraint(Sketcher.Constraint("Coincident", 1, 2, 2, 1))
sketch13.addConstraint(Sketcher.Constraint("Coincident", 2, 2, 3, 1))
sketch13.addConstraint(Sketcher.Constraint("Coincident", 3, 2, 4, 1))
sketch13.addConstraint(Sketcher.Constraint("Coincident", 4, 2, 5, 1))
sketch13.addConstraint(Sketcher.Constraint("Coincident", 5, 2, 6, 1))
sketch13.addConstraint(Sketcher.Constraint("Coincident", 6, 2, 7, 1))
sketch13.addConstraint(Sketcher.Constraint("Coincident", 7, 2, 0, 1))
sketch13.addConstraint(Sketcher.Constraint("Horizontal", 0))
sketch13.addConstraint(Sketcher.Constraint("Horizontal", 2))
sketch13.addConstraint(Sketcher.Constraint("Vertical", 3))
sketch13.addConstraint(Sketcher.Constraint("Horizontal", 4))
sketch13.addConstraint(Sketcher.Constraint("Horizontal", 6))
sketch13.addConstraint(Sketcher.Constraint("Vertical", 7))
sketch13.addConstraint(Sketcher.Constraint("Coincident", 5, 3, 1, 3))
sketch13.addConstraint(Sketcher.Constraint("Coincident", 8, 3, 1, 3))
sketch13.addConstraint(Sketcher.Constraint("Equal", 1, 5))
sketch13.addConstraint(Sketcher.Constraint("Symmetric", 1, 2, 4, 2, -1))
sketch13.addConstraint(Sketcher.Constraint("Horizontal", 0, 2, 1, 2))
sketch13.addConstraint(Sketcher.Constraint("Horizontal", 4, 2, 5, 2))
sketch13.addConstraint(Sketcher.Constraint("Equal", 0, 2))
sketch13.addConstraint(Sketcher.Constraint("Diameter", 8, Q("10 mm")))
sketch13.addConstraint(Sketcher.Constraint("DistanceY", 3, 2, 3, 1, Q("8 mm")))
sketch13.addConstraint(Sketcher.Constraint("Radius", 1, Q("8.75 mm")))
sketch13.addConstraint(Sketcher.Constraint("DistanceX", 2, 2, 1, 3, Q("10 mm")))
sketch13.addConstraint(Sketcher.Constraint("DistanceX", 1, 3, -1, 1, Q("0.75 mm")))
pad12 = doc.addObject("PartDesign::Pad", "Pad011")
body2.addObject(pad12)
pad12.Profile = sketch13
pad12.Length = 1.5

sketch14 = doc.addObject("Sketcher::SketchObject", "Sketch013")
body2.addObject(sketch14)
sketch14.AttachmentSupport = (doc.getObject("XY_Plane001"), [""])
sketch14.MapMode = "FlatFace"
sketch14.AttachmentOffset = App.Placement(Vector(0, 0, 50), App.Rotation())
add_polygon(sketch14, [(-9.2, 4), (-9.2, -4), (-10.8, -4), (-10.8, 4)])
sketch14.addConstraint(Sketcher.Constraint("Vertical", 0))
sketch14.addConstraint(Sketcher.Constraint("Horizontal", 1))
sketch14.addConstraint(Sketcher.Constraint("Vertical", 2))
sketch14.addConstraint(Sketcher.Constraint("Horizontal", 3))
sketch14.addConstraint(Sketcher.Constraint("DistanceY", 0, 2, 0, 1, Q("8 mm")))
sketch14.addConstraint(Sketcher.Constraint("DistanceX", 1, 2, 1, 1, Q("1.5 mm")))
sketch14.addConstraint(Sketcher.Constraint("DistanceY", 0, 2, -1, 1, Q("4 mm")))
sketch14.addConstraint(Sketcher.Constraint("DistanceX", 0, 2, -1, 1, Q("9.25 mm")))
pad13 = doc.addObject("PartDesign::Pad", "Pad012")
body2.addObject(pad13)
pad13.Profile = sketch14
pad13.Length = 13
pad13.Reversed = True

sketch15 = doc.addObject("Sketcher::SketchObject", "Sketch014")
body2.addObject(sketch15)
sketch15.AttachmentSupport = (doc.getObject("XY_Plane001"), [""])
sketch15.MapMode = "FlatFace"
sketch15.AttachmentOffset = App.Placement(Vector(0, 0, 37), App.Rotation())
add_polygon(sketch15, [(-9.2, 5.8), (-9.2, -5.8), (-10.8, -5.8), (-10.8, 5.8)])
sketch15.addConstraint(Sketcher.Constraint("Vertical", 0))
sketch15.addConstraint(Sketcher.Constraint("Horizontal", 1))
sketch15.addConstraint(Sketcher.Constraint("Vertical", 2))
sketch15.addConstraint(Sketcher.Constraint("Horizontal", 3))
sketch15.addConstraint(Sketcher.Constraint("DistanceX", 1, 2, 1, 1, Q("1.5 mm")))
sketch15.addConstraint(Sketcher.Constraint("DistanceY", 0, 2, 0, 1, Q("11.5 mm")))
sketch15.addConstraint(Sketcher.Constraint("DistanceX", 0, 2, -1, 1, Q("9.25 mm")))
sketch15.addConstraint(Sketcher.Constraint("DistanceY", 0, 2, -1, 1, Q("5.75 mm")))
pad14 = doc.addObject("PartDesign::Pad", "Pad013")
body2.addObject(pad14)
pad14.Profile = sketch15
pad14.Length = 9.5
pad14.Reversed = True
doc.recompute()

fillet5 = doc.addObject("PartDesign::Fillet", "Fillet004")
body2.addObject(fillet5)
fillet5.Base = (pad14, edges_at(pad14, [
    (8.5, -5.75, 37),
    (8.5, -5.75, 27.5),
    (8.5, 5.75, 27.5),
    (8.5, 5.75, 37),
    (9.25, 0, 51.5),
    (-10.75, 0, 51.5),
    (-10, -5.75, 27.5),
    (-10, -5.75, 37),
    (-10, 5.75, 37),
    (-10, 5.75, 27.5),
]))
fillet5.Radius = 1.5

sketch16 = doc.addObject("Sketcher::SketchObject", "Sketch015")
body2.addObject(sketch16)
sketch16.AttachmentSupport = (doc.getObject("YZ_Plane001"), [""])
sketch16.MapMode = "FlatFace"
sketch16.AttachmentOffset = App.Placement(Vector(0, 0, 9.25), App.Rotation())
add_polygon(sketch16, [(2.5, 34), (-2.5, 34), (-2.5, 31), (2.5, 31)])
sketch16.addConstraint(Sketcher.Constraint("Horizontal", 0))
sketch16.addConstraint(Sketcher.Constraint("Vertical", 1))
sketch16.addConstraint(Sketcher.Constraint("Horizontal", 2))
sketch16.addConstraint(Sketcher.Constraint("Vertical", 3))
sketch16.addConstraint(Sketcher.Constraint("DistanceX", 0, 2, 0, 1, Q("5 mm")))
sketch16.addConstraint(Sketcher.Constraint("DistanceY", 1, 2, 1, 1, Q("3 mm")))
sketch16.addConstraint(Sketcher.Constraint("DistanceY", -1, 1, 0, 2, Q("34 mm")))
sketch16.addConstraint(Sketcher.Constraint("DistanceX", 0, 2, -1, 1, Q("2.5 mm")))
pocket2 = doc.addObject("PartDesign::Pocket", "Pocket001")
body2.addObject(pocket2)
pocket2.Profile = sketch16
pocket2.Type = "ThroughAll"

doc.recompute()
